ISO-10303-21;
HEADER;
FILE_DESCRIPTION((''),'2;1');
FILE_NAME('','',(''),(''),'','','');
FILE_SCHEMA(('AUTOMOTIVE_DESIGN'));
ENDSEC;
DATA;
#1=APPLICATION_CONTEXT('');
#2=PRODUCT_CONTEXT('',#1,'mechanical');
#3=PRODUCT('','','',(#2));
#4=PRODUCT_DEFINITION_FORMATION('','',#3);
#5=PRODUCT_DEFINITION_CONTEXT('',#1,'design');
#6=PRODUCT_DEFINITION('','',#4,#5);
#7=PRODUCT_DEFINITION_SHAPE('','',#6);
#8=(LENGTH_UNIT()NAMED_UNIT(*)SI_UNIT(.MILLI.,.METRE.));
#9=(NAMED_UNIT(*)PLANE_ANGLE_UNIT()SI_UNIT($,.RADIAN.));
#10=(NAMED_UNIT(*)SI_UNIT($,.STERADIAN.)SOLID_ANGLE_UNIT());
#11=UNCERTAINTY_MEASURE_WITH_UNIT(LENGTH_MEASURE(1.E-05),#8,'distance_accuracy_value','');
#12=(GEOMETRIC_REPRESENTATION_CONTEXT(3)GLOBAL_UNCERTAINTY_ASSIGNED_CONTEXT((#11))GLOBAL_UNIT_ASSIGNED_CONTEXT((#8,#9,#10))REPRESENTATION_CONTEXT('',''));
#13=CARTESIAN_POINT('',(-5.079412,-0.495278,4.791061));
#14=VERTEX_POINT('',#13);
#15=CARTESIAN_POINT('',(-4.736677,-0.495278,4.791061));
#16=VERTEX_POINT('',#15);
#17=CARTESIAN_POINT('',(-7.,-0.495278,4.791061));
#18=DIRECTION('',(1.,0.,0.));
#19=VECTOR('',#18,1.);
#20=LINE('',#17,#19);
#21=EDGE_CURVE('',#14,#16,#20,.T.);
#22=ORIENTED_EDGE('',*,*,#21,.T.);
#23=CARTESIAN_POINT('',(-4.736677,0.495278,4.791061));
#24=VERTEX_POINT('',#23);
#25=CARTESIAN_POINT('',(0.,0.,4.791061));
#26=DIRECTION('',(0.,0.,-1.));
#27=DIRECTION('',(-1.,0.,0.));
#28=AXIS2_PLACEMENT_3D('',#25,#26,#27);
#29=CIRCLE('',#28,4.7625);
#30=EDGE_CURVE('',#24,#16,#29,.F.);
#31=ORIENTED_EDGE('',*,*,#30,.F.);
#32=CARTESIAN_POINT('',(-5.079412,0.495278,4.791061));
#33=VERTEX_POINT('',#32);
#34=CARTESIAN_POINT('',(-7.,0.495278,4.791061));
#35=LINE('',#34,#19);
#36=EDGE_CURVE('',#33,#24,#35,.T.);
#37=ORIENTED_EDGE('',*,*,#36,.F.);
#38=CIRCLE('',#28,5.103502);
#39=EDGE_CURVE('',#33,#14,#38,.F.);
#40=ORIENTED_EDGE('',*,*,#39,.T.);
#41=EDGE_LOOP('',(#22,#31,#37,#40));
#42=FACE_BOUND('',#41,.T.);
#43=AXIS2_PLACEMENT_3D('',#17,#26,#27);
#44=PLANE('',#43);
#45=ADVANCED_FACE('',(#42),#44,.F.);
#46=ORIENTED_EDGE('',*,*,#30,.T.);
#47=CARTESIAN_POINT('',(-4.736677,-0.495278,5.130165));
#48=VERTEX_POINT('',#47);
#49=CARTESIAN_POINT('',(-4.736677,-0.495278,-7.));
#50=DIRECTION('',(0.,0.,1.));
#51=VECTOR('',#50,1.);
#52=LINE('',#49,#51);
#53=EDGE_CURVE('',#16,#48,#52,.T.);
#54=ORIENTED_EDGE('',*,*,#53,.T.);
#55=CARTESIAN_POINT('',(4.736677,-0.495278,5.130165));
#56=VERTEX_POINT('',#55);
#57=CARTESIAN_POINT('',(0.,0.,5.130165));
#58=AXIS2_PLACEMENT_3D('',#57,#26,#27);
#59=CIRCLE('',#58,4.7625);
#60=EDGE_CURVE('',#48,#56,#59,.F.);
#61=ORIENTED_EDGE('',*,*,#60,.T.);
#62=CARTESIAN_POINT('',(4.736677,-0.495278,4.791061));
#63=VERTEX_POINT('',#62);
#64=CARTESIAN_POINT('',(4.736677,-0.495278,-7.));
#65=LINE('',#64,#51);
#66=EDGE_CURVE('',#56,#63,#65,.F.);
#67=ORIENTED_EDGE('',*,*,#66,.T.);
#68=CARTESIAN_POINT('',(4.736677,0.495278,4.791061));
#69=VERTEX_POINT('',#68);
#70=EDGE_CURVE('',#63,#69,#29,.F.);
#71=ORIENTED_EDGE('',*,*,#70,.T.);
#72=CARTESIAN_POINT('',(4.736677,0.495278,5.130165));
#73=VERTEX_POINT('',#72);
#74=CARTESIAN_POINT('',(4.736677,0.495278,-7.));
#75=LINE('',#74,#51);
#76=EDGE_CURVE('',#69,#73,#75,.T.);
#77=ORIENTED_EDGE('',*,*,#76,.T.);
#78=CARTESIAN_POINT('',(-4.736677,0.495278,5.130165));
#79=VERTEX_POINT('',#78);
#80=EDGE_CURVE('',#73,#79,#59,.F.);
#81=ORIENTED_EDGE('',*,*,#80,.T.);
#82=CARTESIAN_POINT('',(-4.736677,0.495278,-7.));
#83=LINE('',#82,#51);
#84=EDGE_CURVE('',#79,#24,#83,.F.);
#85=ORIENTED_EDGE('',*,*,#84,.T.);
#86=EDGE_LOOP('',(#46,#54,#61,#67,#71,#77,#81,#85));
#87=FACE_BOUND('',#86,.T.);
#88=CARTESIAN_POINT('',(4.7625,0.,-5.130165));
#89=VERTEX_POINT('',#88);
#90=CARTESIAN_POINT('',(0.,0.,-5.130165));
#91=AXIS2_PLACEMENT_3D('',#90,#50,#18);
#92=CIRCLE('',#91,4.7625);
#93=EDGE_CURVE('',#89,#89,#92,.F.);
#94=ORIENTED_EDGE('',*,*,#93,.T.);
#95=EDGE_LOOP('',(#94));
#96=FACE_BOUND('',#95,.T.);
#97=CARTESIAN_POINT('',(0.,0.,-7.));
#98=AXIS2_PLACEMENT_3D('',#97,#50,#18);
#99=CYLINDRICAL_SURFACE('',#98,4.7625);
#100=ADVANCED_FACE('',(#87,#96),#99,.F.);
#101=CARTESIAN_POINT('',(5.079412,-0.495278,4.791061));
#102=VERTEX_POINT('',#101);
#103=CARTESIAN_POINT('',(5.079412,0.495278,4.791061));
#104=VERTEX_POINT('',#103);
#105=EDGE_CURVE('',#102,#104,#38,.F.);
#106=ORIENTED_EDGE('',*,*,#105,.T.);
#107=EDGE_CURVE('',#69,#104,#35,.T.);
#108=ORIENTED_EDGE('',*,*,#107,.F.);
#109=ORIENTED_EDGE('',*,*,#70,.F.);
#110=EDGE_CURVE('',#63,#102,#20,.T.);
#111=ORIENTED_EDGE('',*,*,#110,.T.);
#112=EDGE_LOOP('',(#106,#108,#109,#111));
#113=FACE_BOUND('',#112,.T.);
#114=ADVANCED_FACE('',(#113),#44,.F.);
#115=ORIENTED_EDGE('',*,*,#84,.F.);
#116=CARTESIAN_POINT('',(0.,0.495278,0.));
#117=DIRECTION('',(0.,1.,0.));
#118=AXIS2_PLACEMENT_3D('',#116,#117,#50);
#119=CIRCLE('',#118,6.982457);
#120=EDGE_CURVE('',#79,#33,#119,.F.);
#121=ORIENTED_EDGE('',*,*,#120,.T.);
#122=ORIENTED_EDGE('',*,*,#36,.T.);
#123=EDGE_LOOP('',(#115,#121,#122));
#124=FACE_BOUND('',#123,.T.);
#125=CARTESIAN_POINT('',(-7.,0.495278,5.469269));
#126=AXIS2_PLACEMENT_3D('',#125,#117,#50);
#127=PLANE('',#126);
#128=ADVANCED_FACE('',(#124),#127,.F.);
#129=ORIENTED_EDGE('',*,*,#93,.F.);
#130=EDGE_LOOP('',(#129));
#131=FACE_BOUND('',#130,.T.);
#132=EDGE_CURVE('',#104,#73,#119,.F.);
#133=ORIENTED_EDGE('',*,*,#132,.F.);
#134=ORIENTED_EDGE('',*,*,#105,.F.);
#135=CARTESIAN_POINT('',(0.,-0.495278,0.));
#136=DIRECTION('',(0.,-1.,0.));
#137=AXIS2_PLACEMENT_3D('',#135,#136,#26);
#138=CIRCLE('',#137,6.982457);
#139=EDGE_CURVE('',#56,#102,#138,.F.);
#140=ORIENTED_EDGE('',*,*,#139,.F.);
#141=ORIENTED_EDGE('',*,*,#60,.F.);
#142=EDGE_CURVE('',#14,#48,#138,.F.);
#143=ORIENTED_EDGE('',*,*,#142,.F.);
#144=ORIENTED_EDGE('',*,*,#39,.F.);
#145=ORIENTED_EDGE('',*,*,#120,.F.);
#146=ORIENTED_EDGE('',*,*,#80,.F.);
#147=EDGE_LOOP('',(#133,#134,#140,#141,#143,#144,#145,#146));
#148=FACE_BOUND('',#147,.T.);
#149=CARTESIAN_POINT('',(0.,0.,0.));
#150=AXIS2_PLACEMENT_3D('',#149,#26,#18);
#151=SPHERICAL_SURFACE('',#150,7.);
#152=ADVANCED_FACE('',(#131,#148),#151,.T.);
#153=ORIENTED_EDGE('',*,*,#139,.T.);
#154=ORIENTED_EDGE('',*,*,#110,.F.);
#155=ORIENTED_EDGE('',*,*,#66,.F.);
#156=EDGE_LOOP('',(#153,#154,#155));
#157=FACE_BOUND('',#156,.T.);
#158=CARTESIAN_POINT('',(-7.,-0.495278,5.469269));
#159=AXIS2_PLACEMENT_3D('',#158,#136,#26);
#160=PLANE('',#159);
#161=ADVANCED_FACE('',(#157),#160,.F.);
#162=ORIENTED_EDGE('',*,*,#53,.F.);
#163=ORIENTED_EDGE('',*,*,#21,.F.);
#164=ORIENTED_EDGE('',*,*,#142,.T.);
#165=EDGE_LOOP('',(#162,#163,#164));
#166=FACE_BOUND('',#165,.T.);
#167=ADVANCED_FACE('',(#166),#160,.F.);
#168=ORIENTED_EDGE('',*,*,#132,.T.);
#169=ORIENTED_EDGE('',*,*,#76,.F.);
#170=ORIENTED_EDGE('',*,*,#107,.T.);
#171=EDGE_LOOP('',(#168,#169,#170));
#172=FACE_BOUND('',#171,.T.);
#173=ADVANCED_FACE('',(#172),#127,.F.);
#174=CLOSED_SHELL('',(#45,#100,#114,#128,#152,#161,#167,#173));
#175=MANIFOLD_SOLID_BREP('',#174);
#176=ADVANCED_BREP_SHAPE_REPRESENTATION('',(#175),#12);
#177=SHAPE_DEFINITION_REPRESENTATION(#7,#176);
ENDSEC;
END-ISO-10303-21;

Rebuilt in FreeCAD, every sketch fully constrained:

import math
import FreeCAD as App
import Part
import Sketcher
from FreeCAD import Vector

doc = App.newDocument("Part")
params = doc.addObject("Spreadsheet::Sheet", "Params")
for row, (alias, value) in enumerate([
    ("sketch1_radius", "7 mm"),
    ("revolution_angle", "360 deg"),
], start=1):
    params.set(f"A{row}", alias)
    params.set(f"B{row}", "=" + value)
    params.setAlias(f"B{row}", alias)

body = doc.addObject("PartDesign::Body", "Body")

# Sketch on XZ plane
sketch1 = body.newObject("Sketcher::SketchObject", "Sketch")
sketch1.AttachmentSupport = (doc.getObject("XZ_Plane"), [""])
sketch1.MapMode = "FlatFace"
sketch1.addGeometry([
    Part.LineSegment(Vector(0, 7, 0), Vector(0, -7, 0)),
    Part.ArcOfCircle(Part.Circle(Vector(0, 0, 0), Vector(0, 0, 1), 7), math.radians(90), math.radians(270)),
], False)
sketch1.addConstraint([
    Sketcher.Constraint("Coincident", 0, 1, 1, 1),
    Sketcher.Constraint("Coincident", 1, 2, 0, 2),
    Sketcher.Constraint("Vertical", 0),
    Sketcher.Constraint("Coincident", 1, 3, -1, 1),
    Sketcher.Constraint("PointOnObject", 0, 1, -2),
    Sketcher.Constraint("Radius", 1, 7.0),
])
sketch1.setExpression("Constraints[5]", "Params.sketch1_radius")
revolution = body.newObject("PartDesign::Revolution", "Revolution")
revolution.Profile = sketch1
revolution.ReferenceAxis = (sketch1, ["V_Axis"])
revolution.setExpression("Angle", "Params.revolution_angle")

# Sketch on XY plane
sketch2 = body.newObject("Sketcher::SketchObject", "Sketch001")
sketch2.AttachmentSupport = (doc.getObject("XY_Plane"), [""])
sketch2.MapMode = "FlatFace"
sketch2.addGeometry(Part.Circle(Vector(0, 0, 0), Vector(0, 0, 1), 4.8), False)
sketch2.addConstraint([
    Sketcher.Constraint("Coincident", 0, 3, -1, 1),
    Sketcher.Constraint("Diameter", 0, 9.525),
])
pocket1 = body.newObject("PartDesign::Pocket", "Pocket")
pocket1.Profile = sketch2
pocket1.Type = "ThroughAll"
pocket1.Midplane = True

# Sketch on YZ plane
sketch3 = body.newObject("Sketcher::SketchObject", "Sketch002")
sketch3.AttachmentSupport = (doc.getObject("YZ_Plane"), [""])
sketch3.MapMode = "FlatFace"
sketch3.addGeometry([
    Part.LineSegment(Vector(0.5, 5.5, 0), Vector(-0.5, 5.5, 0)),
    Part.LineSegment(Vector(-0.5, 5.5, 0), Vector(-0.5, 4.8, 0)),
    Part.LineSegment(Vector(-0.5, 4.8, 0), Vector(0.5, 4.8, 0)),
    Part.LineSegment(Vector(0.5, 4.8, 0), Vector(0.5, 5.5, 0)),
], False)
sketch3.addConstraint([
    Sketcher.Constraint("Coincident", 0, 2, 1, 1),
    Sketcher.Constraint("Coincident", 1, 2, 2, 1),
    Sketcher.Constraint("Coincident", 2, 2, 3, 1),
    Sketcher.Constraint("Coincident", 3, 2, 0, 1),
    Sketcher.Constraint("Horizontal", 0),
    Sketcher.Constraint("Vertical", 1),
    Sketcher.Constraint("Horizontal", 2),
    Sketcher.Constraint("Vertical", 3),
    Sketcher.Constraint("DistanceX", 0, 2, 0, 1, 0.990557),
    Sketcher.Constraint("DistanceY", 1, 2, 1, 1, 0.678207),
    Sketcher.Constraint("DistanceX", 0, 2, -1, 1, 0.495278),
    Sketcher.Constraint("DistanceY", -1, 1, 0, 2, 5.469269),
])
pocket2 = body.newObject("PartDesign::Pocket", "Pocket001")
pocket2.Profile = sketch3
pocket2.Type = "ThroughAll"
pocket2.Midplane = True

doc.recompute()
